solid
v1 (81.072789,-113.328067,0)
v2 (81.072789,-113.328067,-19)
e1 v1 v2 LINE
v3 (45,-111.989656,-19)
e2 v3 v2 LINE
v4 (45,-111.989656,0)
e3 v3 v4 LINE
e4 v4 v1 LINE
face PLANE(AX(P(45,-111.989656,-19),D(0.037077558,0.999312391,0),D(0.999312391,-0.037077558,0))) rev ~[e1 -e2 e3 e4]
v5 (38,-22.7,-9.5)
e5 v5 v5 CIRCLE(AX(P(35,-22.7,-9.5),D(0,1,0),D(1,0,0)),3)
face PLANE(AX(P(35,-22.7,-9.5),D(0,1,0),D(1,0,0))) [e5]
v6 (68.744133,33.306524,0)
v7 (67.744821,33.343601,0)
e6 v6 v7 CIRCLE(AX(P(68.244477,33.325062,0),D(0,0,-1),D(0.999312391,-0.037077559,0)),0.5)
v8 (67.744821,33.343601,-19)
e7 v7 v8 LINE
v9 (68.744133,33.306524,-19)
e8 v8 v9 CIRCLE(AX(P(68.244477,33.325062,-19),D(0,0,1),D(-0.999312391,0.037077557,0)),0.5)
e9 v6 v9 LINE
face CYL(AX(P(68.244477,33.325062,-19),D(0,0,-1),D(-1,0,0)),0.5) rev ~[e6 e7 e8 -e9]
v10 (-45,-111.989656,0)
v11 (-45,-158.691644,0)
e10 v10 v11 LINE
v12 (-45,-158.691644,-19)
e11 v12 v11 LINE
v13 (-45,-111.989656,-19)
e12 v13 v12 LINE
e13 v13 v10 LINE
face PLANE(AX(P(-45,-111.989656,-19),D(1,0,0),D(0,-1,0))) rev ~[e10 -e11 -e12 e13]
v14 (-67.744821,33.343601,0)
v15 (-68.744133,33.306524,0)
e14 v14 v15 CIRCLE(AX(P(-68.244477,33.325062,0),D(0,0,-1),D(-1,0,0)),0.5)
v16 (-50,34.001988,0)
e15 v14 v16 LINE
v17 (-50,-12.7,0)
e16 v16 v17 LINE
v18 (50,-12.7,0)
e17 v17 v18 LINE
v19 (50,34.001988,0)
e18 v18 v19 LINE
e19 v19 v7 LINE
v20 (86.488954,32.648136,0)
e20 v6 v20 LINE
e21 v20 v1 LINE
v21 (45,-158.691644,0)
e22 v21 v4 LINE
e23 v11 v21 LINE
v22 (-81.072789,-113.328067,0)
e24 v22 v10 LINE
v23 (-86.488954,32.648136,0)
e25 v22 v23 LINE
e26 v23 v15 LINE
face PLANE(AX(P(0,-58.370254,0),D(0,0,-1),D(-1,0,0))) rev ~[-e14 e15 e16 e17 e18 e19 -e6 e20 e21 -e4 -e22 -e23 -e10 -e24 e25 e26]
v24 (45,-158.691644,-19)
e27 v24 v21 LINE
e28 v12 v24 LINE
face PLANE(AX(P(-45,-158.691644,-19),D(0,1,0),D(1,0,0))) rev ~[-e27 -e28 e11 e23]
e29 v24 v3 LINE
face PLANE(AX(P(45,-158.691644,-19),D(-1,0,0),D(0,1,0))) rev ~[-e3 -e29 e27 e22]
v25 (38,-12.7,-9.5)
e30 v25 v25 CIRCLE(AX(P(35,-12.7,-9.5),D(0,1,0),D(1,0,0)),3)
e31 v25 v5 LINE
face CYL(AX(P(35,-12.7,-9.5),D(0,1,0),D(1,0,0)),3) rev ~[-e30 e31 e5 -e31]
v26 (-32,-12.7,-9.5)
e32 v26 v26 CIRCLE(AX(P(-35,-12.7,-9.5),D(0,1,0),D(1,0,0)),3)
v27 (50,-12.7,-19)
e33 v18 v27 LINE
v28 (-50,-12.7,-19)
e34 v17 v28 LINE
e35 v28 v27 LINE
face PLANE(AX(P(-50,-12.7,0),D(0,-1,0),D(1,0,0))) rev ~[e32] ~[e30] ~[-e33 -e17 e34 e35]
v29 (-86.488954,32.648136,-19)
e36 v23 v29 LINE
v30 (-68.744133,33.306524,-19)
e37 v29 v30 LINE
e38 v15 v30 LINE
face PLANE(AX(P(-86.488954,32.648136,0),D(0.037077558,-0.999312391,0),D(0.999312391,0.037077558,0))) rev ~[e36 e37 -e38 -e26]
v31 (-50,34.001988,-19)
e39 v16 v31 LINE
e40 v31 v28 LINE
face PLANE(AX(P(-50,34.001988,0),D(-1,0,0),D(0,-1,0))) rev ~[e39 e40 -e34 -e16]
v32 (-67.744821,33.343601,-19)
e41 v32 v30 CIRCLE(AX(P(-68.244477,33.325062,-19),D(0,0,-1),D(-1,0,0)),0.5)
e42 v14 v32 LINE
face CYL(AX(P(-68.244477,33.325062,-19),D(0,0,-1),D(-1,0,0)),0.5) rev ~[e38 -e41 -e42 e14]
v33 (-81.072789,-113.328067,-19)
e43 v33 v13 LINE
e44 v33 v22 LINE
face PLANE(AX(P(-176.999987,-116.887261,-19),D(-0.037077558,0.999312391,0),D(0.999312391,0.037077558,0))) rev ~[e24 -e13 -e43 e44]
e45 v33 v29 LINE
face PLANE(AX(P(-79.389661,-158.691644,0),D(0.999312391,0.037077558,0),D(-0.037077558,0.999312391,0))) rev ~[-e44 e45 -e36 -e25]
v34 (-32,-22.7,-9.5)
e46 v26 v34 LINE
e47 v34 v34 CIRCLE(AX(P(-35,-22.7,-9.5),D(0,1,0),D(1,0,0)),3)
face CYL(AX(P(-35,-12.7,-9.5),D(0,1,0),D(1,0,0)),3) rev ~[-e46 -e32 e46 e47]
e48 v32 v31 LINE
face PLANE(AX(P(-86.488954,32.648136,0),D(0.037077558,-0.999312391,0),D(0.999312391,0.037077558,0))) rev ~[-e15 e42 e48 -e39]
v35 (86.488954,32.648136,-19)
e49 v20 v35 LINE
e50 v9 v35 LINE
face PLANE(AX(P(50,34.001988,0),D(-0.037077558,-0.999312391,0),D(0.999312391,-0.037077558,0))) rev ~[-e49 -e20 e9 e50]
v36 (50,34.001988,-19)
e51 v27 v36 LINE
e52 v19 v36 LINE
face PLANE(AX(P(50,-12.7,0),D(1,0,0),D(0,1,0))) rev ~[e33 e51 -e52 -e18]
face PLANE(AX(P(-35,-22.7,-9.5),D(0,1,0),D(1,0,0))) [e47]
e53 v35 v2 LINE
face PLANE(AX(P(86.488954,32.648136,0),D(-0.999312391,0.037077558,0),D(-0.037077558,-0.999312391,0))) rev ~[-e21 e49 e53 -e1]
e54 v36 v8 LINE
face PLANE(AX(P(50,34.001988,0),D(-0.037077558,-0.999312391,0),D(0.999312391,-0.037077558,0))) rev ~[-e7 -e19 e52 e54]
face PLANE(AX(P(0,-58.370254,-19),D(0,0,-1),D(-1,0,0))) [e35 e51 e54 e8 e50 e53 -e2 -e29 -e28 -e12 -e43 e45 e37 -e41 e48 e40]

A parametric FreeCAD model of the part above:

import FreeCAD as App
import Part
import Sketcher

V = App.Vector
Q = App.Units.Quantity

doc = App.newDocument("Part")
params = doc.addObject("Spreadsheet::Sheet", "Params")
for row, (alias, value) in enumerate([
    ("sketch1_width", "100 mm"),
    ("pad1_length", "19 mm"),
    ("sketch2_width", "90 mm"),
    ("pocket1_length", "19 mm"),
    ("sketch3_diameter", "6 mm"),
    ("pocket2_length", "10 mm"),
    ("sketch4_diameter", "1 mm"),
    ("pocket3_length", "20 mm"),
], start=1):
    params.set(f"A{row}", alias)
    params.set(f"B{row}", "=" + value)
    params.setAlias(f"B{row}", alias)

body = doc.addObject("PartDesign::Body", "Body")

# Sketch on XY plane
sketch1 = doc.addObject("Sketcher::SketchObject", "Sketch")
body.addObject(sketch1)
sketch1.AttachmentSupport = (doc.XY_Plane, [""])
sketch1.MapMode = "FlatFace"
sketch1.addGeometry([
    Part.LineSegment(V(50, -13, 0), V(-50, -13, 0)),  # 0
    Part.LineSegment(V(-50, -13, 0), V(-50, 34, 0)),  # 1
    Part.LineSegment(V(-50, 34, 0), V(-86, 33, 0)),  # 2
    Part.LineSegment(V(-86, 33, 0), V(-79, -159, 0)),  # 3
    Part.LineSegment(V(-79, -159, 0), V(79, -159, 0)),  # 4
    Part.LineSegment(V(79, -159, 0), V(86, 33, 0)),  # 5
    Part.LineSegment(V(86, 33, 0), V(50, 34, 0)),  # 6
    Part.LineSegment(V(50, 34, 0), V(50, -13, 0)),  # 7
], False)
sketch1.addConstraint([
    Sketcher.Constraint("Coincident", 0, 2, 1, 1),
    Sketcher.Constraint("Coincident", 1, 2, 2, 1),
    Sketcher.Constraint("Coincident", 2, 2, 3, 1),
    Sketcher.Constraint("Coincident", 3, 2, 4, 1),
    Sketcher.Constraint("Coincident", 4, 2, 5, 1),
    Sketcher.Constraint("Coincident", 5, 2, 6, 1),
    Sketcher.Constraint("Coincident", 6, 2, 7, 1),
    Sketcher.Constraint("Coincident", 7, 2, 0, 1),
    Sketcher.Constraint("Horizontal", 0),
    Sketcher.Constraint("Vertical", 1),
    Sketcher.Constraint("Horizontal", 4),
    Sketcher.Constraint("Vertical", 7),
    Sketcher.Constraint("Symmetric", 2, 2, 5, 2, -2),
    Sketcher.Constraint("Symmetric", 1, 2, 6, 2, -2),
    Sketcher.Constraint("Perpendicular", 2, 3),
    Sketcher.Constraint("Perpendicular", 5, 6),
    Sketcher.Constraint("DistanceX", 0, 2, 0, 1, Q("100 mm")),
    Sketcher.Constraint("DistanceY", 0, 2, -1, 1, Q("12.7 mm")),
    Sketcher.Constraint("DistanceY", 1, 1, 1, 2, Q("46.701988 mm")),
    Sketcher.Constraint("Distance", 2, Q("36.514062 mm")),
    Sketcher.Constraint("Distance", 3, Q("191.471438 mm")),
    Sketcher.Constraint("DistanceX", 4, 1, 4, 2, Q("158.779322 mm")),
])
sketch1.setExpression("Constraints[16]", "Params.sketch1_width")
pad1 = doc.addObject("PartDesign::Pad", "Pad")
body.addObject(pad1)
pad1.Profile = sketch1
pad1.setExpression("Length", "Params.pad1_length")
pad1.Reversed = True

# Sketch on XY plane
sketch2 = doc.addObject("Sketcher::SketchObject", "Sketch001")
body.addObject(sketch2)
sketch2.AttachmentSupport = (doc.XY_Plane, [""])
sketch2.MapMode = "FlatFace"
sketch2.AttachmentOffset = App.Placement(V(0, 0, -19), App.Rotation())
sketch2.addGeometry([
    Part.LineSegment(V(-177, -117, 0), V(-45, -112, 0)),  # 0
    Part.LineSegment(V(-45, -112, 0), V(-45, -159, 0)),  # 1
    Part.LineSegment(V(-45, -159, 0), V(45, -159, 0)),  # 2
    Part.LineSegment(V(45, -159, 0), V(45, -112, 0)),  # 3
    Part.LineSegment(V(45, -112, 0), V(161, -116, 0)),  # 4
    Part.LineSegment(V(161, -116, 0), V(161, -226, 0)),  # 5
    Part.LineSegment(V(161, -226, 0), V(-177, -226, 0)),  # 6
    Part.LineSegment(V(-177, -226, 0), V(-177, -117, 0)),  # 7
], False)
sketch2.addConstraint([
    Sketcher.Constraint("Coincident", 0, 2, 1, 1),
    Sketcher.Constraint("Coincident", 1, 2, 2, 1),
    Sketcher.Constraint("Coincident", 2, 2, 3, 1),
    Sketcher.Constraint("Coincident", 3, 2, 4, 1),
    Sketcher.Constraint("Coincident", 4, 2, 5, 1),
    Sketcher.Constraint("Coincident", 5, 2, 6, 1),
    Sketcher.Constraint("Coincident", 6, 2, 7, 1),
    Sketcher.Constraint("Coincident", 7, 2, 0, 1),
    Sketcher.Constraint("Vertical", 1),
    Sketcher.Constraint("Horizontal", 2),
    Sketcher.Constraint("Vertical", 3),
    Sketcher.Constraint("Vertical", 5),
    Sketcher.Constraint("Horizontal", 6),
    Sketcher.Constraint("Vertical", 7),
    Sketcher.Constraint("Symmetric", 0, 2, 3, 2, -2),
    Sketcher.Constraint("DistanceX", 2, 1, 2, 2, Q("90 mm")),
    Sketcher.Constraint("DistanceY", 1, 2, 1, 1, Q("46.701988 mm")),
    Sketcher.Constraint("DistanceY", 5, 2, 2, 2, Q("67.637299 mm")),
    Sketcher.Constraint("DistanceX", 6, 2, 6, 1, Q("337.814774 mm")),
    Sketcher.Constraint("DistanceY", 5, 2, 5, 1, Q("110.042203 mm")),
    Sketcher.Constraint("DistanceY", 7, 1, 7, 2, Q("109.441682 mm")),
    Sketcher.Constraint("DistanceY", 4, 2, -1, 1, Q("116.28674 mm")),
    Sketcher.Constraint("Distance", 0, Q("132.090813 mm")),
])
sketch2.setExpression("Constraints[15]", "Params.sketch2_width")
pocket1 = doc.addObject("PartDesign::Pocket", "Pocket")
body.addObject(pocket1)
pocket1.Profile = sketch2
pocket1.setExpression("Length", "Params.pocket1_length")
pocket1.Reversed = True

# Sketch on XZ plane
sketch3 = doc.addObject("Sketcher::SketchObject", "Sketch002")
body.addObject(sketch3)
sketch3.AttachmentSupport = (doc.XZ_Plane, [""])
sketch3.MapMode = "FlatFace"
sketch3.AttachmentOffset = App.Placement(V(0, 0, 12.7), App.Rotation())
sketch3.addGeometry([
    Part.Circle(V(35, -9.5, 0), V(0, 0, 1), 3),
    Part.Circle(V(-35, -9.5, 0), V(0, 0, 1), 3),
], False)
sketch3.addConstraint([
    Sketcher.Constraint("Equal", 0, 1),
    Sketcher.Constraint("Symmetric", 0, 3, 1, 3, -2),
    Sketcher.Constraint("Diameter", 0, Q("6 mm")),
    Sketcher.Constraint("DistanceX", -1, 1, 0, 3, Q("35 mm")),
    Sketcher.Constraint("DistanceY", 0, 3, -1, 1, Q("9.5 mm")),
])
sketch3.setExpression("Constraints[2]", "Params.sketch3_diameter")
pocket2 = doc.addObject("PartDesign::Pocket", "Pocket001")
body.addObject(pocket2)
pocket2.Profile = sketch3
pocket2.setExpression("Length", "Params.pocket2_length")
pocket2.Reversed = True

# Sketch on XY plane
sketch4 = doc.addObject("Sketcher::SketchObject", "Sketch003")
body.addObject(sketch4)
sketch4.AttachmentSupport = (doc.XY_Plane, [""])
sketch4.MapMode = "FlatFace"
sketch4.AttachmentOffset = App.Placement(V(0, 0, -19), App.Rotation())
sketch4.addGeometry([
    Part.Circle(V(-68.2, 33.3, 0), V(0, 0, 1), 0.5),
    Part.Circle(V(68.2, 33.3, 0), V(0, 0, 1), 0.5),
], False)
sketch4.addConstraint([
    Sketcher.Constraint("Equal", 0, 1),
    Sketcher.Constraint("Symmetric", 0, 3, 1, 3, -2),
    Sketcher.Constraint("Diameter", 0, Q("1 mm")),
    Sketcher.Constraint("DistanceX", 0, 3, -1, 1, Q("68.244477 mm")),
    Sketcher.Constraint("DistanceY", -1, 1, 0, 3, Q("33.325062 mm")),
])
sketch4.setExpression("Constraints[2]", "Params.sketch4_diameter")
pocket3 = doc.addObject("PartDesign::Pocket", "Pocket002")
body.addObject(pocket3)
pocket3.Profile = sketch4
pocket3.setExpression("Length", "Params.pocket3_length")
pocket3.Reversed = True

doc.recompute()
